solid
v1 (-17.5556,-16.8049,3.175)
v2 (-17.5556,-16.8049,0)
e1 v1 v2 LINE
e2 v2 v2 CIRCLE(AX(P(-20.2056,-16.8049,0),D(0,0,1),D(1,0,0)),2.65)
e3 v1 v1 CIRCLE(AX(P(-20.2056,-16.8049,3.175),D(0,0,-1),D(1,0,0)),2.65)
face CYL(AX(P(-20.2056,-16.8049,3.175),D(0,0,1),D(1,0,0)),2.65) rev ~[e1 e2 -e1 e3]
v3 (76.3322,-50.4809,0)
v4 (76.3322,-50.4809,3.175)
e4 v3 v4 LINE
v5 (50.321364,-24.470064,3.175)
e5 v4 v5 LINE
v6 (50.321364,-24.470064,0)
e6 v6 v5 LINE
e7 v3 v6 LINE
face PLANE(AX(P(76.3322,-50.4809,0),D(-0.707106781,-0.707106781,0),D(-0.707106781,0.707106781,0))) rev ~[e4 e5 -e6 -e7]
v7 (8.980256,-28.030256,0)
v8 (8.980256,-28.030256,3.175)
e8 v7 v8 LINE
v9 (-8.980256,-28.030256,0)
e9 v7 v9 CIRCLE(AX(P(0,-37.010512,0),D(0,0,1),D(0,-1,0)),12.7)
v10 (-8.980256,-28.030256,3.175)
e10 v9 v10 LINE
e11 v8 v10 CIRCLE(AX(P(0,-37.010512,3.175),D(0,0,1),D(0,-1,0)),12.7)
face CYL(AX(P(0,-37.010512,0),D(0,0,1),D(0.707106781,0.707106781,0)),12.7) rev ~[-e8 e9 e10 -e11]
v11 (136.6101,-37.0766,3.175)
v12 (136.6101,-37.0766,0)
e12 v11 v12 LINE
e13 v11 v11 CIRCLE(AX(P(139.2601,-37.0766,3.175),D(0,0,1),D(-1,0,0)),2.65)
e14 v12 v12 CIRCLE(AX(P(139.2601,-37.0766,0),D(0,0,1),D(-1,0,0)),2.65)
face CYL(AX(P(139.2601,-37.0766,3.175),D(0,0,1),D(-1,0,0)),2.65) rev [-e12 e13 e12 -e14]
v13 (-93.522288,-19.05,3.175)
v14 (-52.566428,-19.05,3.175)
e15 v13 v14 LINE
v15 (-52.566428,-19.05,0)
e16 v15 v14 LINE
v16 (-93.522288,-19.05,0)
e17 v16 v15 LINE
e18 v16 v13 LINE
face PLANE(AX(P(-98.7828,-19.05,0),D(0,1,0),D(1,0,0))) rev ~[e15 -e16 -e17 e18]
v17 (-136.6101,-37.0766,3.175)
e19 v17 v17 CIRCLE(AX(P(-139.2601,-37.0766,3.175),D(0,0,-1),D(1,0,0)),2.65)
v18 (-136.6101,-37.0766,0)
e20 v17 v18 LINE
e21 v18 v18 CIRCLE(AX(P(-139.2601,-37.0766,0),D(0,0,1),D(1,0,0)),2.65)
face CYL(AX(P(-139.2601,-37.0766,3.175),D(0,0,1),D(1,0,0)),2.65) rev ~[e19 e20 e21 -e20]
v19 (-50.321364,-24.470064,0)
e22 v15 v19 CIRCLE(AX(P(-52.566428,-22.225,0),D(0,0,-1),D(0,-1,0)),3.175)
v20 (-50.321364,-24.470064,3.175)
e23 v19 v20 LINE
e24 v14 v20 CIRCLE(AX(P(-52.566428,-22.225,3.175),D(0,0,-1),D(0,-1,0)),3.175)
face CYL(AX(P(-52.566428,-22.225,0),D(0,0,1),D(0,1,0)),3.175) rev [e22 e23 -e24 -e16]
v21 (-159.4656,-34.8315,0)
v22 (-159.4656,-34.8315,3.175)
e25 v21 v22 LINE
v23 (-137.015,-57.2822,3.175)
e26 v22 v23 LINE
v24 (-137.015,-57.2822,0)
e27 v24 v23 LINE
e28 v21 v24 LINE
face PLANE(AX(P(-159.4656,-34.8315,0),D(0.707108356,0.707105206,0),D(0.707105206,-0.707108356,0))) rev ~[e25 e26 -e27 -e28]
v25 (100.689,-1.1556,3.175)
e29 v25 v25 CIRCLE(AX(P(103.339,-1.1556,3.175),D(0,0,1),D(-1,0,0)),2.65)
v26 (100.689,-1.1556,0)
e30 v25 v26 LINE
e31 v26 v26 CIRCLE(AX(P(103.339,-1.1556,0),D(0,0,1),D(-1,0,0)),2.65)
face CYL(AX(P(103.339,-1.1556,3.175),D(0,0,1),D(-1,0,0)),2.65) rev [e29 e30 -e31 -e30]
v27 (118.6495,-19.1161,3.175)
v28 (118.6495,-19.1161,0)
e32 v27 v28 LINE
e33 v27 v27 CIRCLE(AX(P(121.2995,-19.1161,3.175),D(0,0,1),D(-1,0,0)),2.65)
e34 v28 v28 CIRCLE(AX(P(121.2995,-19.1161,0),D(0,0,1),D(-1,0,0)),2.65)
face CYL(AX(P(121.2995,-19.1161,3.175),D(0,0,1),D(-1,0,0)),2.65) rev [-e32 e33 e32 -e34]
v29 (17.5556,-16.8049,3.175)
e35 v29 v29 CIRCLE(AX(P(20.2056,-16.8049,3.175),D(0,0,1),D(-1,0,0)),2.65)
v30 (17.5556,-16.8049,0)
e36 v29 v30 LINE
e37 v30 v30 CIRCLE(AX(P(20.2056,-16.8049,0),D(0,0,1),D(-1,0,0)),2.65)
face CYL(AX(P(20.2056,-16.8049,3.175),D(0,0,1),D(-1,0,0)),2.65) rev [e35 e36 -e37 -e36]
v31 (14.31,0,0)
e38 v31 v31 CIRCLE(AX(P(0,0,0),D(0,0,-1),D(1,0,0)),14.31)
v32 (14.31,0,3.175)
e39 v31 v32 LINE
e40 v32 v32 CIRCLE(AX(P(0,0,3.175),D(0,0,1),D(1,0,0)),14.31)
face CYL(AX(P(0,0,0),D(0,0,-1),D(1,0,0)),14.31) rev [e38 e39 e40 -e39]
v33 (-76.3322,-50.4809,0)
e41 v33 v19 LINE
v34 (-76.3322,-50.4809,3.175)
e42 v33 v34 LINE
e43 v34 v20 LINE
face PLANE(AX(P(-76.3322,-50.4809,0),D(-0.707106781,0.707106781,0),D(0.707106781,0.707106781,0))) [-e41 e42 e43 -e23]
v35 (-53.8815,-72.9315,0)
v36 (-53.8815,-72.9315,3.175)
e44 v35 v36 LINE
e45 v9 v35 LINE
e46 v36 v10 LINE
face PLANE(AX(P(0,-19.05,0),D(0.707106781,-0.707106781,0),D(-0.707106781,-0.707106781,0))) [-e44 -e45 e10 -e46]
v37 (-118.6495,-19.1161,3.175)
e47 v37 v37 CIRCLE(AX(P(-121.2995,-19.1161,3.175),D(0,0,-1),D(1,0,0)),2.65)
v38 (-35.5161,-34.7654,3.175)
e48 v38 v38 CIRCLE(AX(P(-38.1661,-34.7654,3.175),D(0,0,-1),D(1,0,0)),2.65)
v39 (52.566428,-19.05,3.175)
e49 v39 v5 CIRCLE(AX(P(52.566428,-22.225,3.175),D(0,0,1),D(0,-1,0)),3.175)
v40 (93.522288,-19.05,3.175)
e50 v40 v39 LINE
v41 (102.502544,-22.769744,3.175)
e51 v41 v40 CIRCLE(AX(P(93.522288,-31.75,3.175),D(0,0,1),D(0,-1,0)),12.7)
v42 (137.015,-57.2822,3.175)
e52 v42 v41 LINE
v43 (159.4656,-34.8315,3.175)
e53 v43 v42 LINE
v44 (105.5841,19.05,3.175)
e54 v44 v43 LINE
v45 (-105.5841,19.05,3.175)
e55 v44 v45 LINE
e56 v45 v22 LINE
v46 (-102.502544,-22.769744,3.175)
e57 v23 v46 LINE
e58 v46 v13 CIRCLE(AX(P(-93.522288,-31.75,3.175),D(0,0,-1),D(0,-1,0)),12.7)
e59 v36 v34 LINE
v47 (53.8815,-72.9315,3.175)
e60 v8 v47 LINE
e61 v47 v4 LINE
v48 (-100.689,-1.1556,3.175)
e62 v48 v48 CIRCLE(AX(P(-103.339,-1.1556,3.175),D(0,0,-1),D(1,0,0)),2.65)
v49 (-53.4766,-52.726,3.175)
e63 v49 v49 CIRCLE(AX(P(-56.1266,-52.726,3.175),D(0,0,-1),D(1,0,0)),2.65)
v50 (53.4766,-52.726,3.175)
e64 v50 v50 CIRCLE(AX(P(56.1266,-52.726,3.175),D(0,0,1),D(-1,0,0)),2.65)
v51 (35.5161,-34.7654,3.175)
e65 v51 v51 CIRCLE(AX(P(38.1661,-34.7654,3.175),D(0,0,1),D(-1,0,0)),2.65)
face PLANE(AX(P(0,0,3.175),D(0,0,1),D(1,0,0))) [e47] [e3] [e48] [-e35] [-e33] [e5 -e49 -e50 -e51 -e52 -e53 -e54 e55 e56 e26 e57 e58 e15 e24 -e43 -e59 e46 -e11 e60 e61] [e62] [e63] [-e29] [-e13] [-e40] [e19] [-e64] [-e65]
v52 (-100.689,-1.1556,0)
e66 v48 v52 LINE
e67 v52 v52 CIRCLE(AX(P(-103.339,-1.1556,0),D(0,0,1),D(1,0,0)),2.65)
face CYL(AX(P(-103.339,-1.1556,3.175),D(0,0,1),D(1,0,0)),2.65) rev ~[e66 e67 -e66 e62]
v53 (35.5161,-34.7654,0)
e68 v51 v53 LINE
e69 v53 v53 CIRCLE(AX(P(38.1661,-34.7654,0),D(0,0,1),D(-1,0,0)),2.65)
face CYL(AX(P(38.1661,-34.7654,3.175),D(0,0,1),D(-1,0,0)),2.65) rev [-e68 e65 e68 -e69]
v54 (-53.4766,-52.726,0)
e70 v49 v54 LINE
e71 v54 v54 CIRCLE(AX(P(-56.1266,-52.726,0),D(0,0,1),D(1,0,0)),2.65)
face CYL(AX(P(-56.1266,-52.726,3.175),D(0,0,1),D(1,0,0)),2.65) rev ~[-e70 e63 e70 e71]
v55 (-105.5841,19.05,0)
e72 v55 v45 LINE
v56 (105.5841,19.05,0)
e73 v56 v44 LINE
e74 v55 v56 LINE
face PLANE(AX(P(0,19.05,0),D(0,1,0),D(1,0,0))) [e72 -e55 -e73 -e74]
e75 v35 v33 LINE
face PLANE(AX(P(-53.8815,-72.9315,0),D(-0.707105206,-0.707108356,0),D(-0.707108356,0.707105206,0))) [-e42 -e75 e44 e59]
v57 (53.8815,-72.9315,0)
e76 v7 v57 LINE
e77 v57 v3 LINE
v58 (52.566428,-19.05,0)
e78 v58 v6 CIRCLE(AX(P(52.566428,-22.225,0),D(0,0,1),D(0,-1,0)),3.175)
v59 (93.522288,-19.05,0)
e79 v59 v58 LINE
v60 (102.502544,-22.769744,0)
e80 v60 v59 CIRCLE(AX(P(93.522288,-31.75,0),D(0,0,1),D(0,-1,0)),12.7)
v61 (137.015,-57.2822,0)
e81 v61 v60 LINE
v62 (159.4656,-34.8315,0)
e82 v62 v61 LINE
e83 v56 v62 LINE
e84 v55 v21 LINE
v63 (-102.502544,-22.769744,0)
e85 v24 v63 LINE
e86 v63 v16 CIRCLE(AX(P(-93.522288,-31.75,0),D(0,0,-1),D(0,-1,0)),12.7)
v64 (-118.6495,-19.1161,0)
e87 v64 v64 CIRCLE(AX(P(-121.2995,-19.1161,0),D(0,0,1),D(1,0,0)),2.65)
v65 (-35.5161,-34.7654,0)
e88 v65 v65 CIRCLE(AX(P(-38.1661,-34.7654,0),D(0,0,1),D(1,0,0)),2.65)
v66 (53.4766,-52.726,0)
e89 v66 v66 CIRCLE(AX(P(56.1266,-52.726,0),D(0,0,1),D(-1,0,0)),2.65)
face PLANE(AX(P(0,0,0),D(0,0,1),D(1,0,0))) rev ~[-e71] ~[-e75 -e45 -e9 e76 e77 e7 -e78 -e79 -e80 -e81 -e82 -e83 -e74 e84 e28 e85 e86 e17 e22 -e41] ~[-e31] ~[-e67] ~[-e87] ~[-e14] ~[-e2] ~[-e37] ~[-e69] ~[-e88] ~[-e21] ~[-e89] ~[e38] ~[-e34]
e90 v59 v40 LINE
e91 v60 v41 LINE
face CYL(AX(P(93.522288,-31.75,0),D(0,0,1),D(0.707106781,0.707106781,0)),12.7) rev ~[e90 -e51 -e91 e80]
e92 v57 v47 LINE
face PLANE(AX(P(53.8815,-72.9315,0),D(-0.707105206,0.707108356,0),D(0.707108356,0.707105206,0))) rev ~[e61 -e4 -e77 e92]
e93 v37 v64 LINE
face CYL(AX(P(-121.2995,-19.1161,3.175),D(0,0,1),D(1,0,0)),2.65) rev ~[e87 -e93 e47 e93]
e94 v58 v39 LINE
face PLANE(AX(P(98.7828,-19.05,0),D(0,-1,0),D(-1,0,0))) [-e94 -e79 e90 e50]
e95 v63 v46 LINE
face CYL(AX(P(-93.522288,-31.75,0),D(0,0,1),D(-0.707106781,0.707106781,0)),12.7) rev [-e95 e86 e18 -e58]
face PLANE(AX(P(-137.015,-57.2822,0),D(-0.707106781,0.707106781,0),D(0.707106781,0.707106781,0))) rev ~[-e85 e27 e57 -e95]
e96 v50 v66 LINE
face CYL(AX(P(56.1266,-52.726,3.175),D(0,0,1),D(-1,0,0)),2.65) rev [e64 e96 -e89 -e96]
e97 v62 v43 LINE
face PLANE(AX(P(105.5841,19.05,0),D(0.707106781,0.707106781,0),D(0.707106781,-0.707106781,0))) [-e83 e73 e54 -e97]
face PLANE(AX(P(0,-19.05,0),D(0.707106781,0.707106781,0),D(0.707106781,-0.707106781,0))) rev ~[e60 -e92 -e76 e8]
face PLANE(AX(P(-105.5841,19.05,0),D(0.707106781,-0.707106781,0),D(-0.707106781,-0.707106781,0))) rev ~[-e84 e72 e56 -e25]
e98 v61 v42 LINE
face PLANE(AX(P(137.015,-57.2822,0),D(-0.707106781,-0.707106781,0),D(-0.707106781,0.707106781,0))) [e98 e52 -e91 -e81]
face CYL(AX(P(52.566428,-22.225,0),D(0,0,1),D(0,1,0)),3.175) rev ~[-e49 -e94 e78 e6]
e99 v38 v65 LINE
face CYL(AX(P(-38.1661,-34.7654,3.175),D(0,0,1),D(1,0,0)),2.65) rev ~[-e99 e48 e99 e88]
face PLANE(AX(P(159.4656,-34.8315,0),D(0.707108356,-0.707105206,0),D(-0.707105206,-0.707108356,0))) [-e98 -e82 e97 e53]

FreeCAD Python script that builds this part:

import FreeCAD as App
import Part
import Sketcher
from FreeCAD import Vector
Q = App.Units.Quantity


def edges_at(feature, points):
    """Names of the edges that pass closest to the given points."""
    edges = feature.Shape.Edges
    near = lambda p: min(range(len(edges)), key=lambda i: edges[i].distToShape(Part.Vertex(*p))[0])
    return sorted({f"Edge{near(p) + 1}" for p in points})

doc = App.newDocument("Part")
body = doc.addObject("PartDesign::Body", "Body")

sketch1 = body.newObject("Sketcher::SketchObject", "Sketch")
sketch1.AttachmentSupport = (doc.getObject("XY_Plane"), [""])
sketch1.MapMode = "FlatFace"
sketch1.addGeometry([
    Part.LineSegment(Vector(105.5841, 19.05, 0), Vector(-105.5841, 19.05, 0)),
    Part.LineSegment(Vector(-105.5841, 19.05, 0), Vector(-159.4656, -34.8315, 0)),
    Part.LineSegment(Vector(-159.4656, -34.8315, 0), Vector(-137.015, -57.2822, 0)),
    Part.LineSegment(Vector(-137.015, -57.2822, 0), Vector(-98.7828, -19.05, 0)),
    Part.LineSegment(Vector(-98.7828, -19.05, 0), Vector(-44.9013, -19.05, 0)),
    Part.LineSegment(Vector(-44.9013, -19.05, 0), Vector(-76.3322, -50.4809, 0)),
    Part.LineSegment(Vector(-76.3322, -50.4809, 0), Vector(-53.8815, -72.9315, 0)),
    Part.LineSegment(Vector(-53.8815, -72.9315, 0), Vector(0, -19.05, 0)),
    Part.LineSegment(Vector(0, -19.05, 0), Vector(53.8815, -72.9315, 0)),
    Part.LineSegment(Vector(53.8815, -72.9315, 0), Vector(76.3322, -50.4809, 0)),
    Part.LineSegment(Vector(76.3322, -50.4809, 0), Vector(44.9013, -19.05, 0)),
    Part.LineSegment(Vector(44.9013, -19.05, 0), Vector(98.7828, -19.05, 0)),
    Part.LineSegment(Vector(98.7828, -19.05, 0), Vector(137.015, -57.2822, 0)),
    Part.LineSegment(Vector(137.015, -57.2822, 0), Vector(159.4656, -34.8315, 0)),
    Part.LineSegment(Vector(159.4656, -34.8315, 0), Vector(105.5841, 19.05, 0)),
    Part.Circle(Vector(0, 0, 0), Vector(0, 0, 1), 14.31),
], False)
sketch1.addConstraint([
    Sketcher.Constraint("Coincident", 0, 2, 1, 1),
    Sketcher.Constraint("Coincident", 1, 2, 2, 1),
    Sketcher.Constraint("Coincident", 2, 2, 3, 1),
    Sketcher.Constraint("Coincident", 3, 2, 4, 1),
    Sketcher.Constraint("Coincident", 4, 2, 5, 1),
    Sketcher.Constraint("Coincident", 5, 2, 6, 1),
    Sketcher.Constraint("Coincident", 6, 2, 7, 1),
    Sketcher.Constraint("Coincident", 7, 2, 8, 1),
    Sketcher.Constraint("Coincident", 8, 2, 9, 1),
    Sketcher.Constraint("Coincident", 9, 2, 10, 1),
    Sketcher.Constraint("Coincident", 10, 2, 11, 1),
    Sketcher.Constraint("Coincident", 11, 2, 12, 1),
    Sketcher.Constraint("Coincident", 12, 2, 13, 1),
    Sketcher.Constraint("Coincident", 13, 2, 14, 1),
    Sketcher.Constraint("Coincident", 14, 2, 0, 1),
    Sketcher.Constraint("Horizontal", 0),
    Sketcher.Constraint("Horizontal", 4),
    Sketcher.Constraint("Horizontal", 11),
    Sketcher.Constraint("Coincident", 15, 3, -1, 1),
    Sketcher.Constraint("Symmetric", 6, 2, 8, 2, -2),
    Sketcher.Constraint("Symmetric", 5, 2, 9, 2, -2),
    Sketcher.Constraint("Symmetric", 4, 2, 10, 2, -2),
    Sketcher.Constraint("Symmetric", 2, 2, 12, 2, -2),
    Sketcher.Constraint("Symmetric", 1, 2, 13, 2, -2),
    Sketcher.Constraint("PointOnObject", 7, 2, -2),
    Sketcher.Constraint("Perpendicular", 1, 2),
    Sketcher.Constraint("Perpendicular", 2, 3),
    Sketcher.Constraint("Parallel", 3, 5),
    Sketcher.Constraint("Perpendicular", 5, 6),
    Sketcher.Constraint("Perpendicular", 6, 7),
    Sketcher.Constraint("Perpendicular", 7, 8),
    Sketcher.Constraint("Parallel", 10, 12),
    Sketcher.Constraint("Perpendicular", 13, 14),
    Sketcher.Constraint("Horizontal", 4, 2, 7, 2),
    Sketcher.Constraint("Equal", 2, 6),
    Sketcher.Constraint("Equal", 1, 7),
    Sketcher.Constraint("Distance", 1, Q("3 in")),
    Sketcher.Constraint("DistanceY", 3, 2, 0, 2, Q("1.5 in")),
    Sketcher.Constraint("Distance", 2, Q("1.25 in")),
    Sketcher.Constraint("Diameter", 15, Q("28.62 mm")),
    Sketcher.Constraint("DistanceY", -1, 1, 0, 2, Q("0.75 in")),
    Sketcher.Constraint("DistanceX", 0, 2, 0, 1, Q("8.3137 in")),
])
pad1 = body.newObject("PartDesign::Pad", "Pad")
pad1.Profile = sketch1
pad1.Length = Q("0.125 in")

sketch2 = body.newObject("Sketcher::SketchObject", "Sketch001")
sketch2.AttachmentSupport = (doc.getObject("XY_Plane"), [""])
sketch2.MapMode = "FlatFace"
sketch2.AttachmentOffset = App.Placement(Vector(0, 0, 0.125 * 25.4), App.Rotation())
sketch2.addGeometry([
    Part.Circle(Vector(-56.1266, -52.726, 0), Vector(0, 0, 1), 2.65),
    Part.Circle(Vector(-38.1661, -34.7654, 0), Vector(0, 0, 1), 2.65),
    Part.Circle(Vector(-20.2056, -16.8049, 0), Vector(0, 0, 1), 2.65),
    Part.Circle(Vector(-103.339, -1.1556, 0), Vector(0, 0, 1), 2.65),
    Part.Circle(Vector(-139.2601, -37.0766, 0), Vector(0, 0, 1), 2.65),
    Part.Circle(Vector(-121.2995, -19.1161, 0), Vector(0, 0, 1), 2.65),
], False)
sketch2.addConstraint([
    Sketcher.Constraint("Equal", 0, 1),
    Sketcher.Constraint("Equal", 1, 2),
    Sketcher.Constraint("Equal", 2, 3),
    Sketcher.Constraint("Equal", 3, 4),
    Sketcher.Constraint("Equal", 4, 5),
    Sketcher.Constraint("Diameter", 0, Q("5.3 mm")),
    Sketcher.Constraint("DistanceY", 4, 3, 1, 3, Q("0.091 in")),
    Sketcher.Constraint("DistanceY", 5, 3, 2, 3, Q("0.091 in")),
    Sketcher.Constraint("DistanceX", 0, 3, -1, 1, Q("2.2097 in")),
    Sketcher.Constraint("DistanceX", 1, 3, -1, 1, Q("1.5026 in")),
    Sketcher.Constraint("DistanceX", 2, 3, -1, 1, Q("0.7955 in")),
    Sketcher.Constraint("DistanceY", 2, 3, -1, 1, Q("0.6616 in")),
    Sketcher.Constraint("DistanceY", 3, 3, -1, 1, Q("0.0455 in")),
    Sketcher.Constraint("DistanceY", 4, 3, -1, 1, Q("1.4597 in")),
    Sketcher.Constraint("DistanceY", 0, 3, 1, 3, Q("0.7071 in")),
    Sketcher.Constraint("DistanceX", 5, 3, 3, 3, Q("0.7071 in")),
    Sketcher.Constraint("DistanceX", 4, 3, 5, 3, Q("0.7071 in")),
    Sketcher.Constraint("DistanceX", 3, 3, -1, 1, Q("103.339 mm")),
])
pocket1 = body.newObject("PartDesign::Pocket", "Pocket")
pocket1.Profile = sketch2
pocket1.Length = Q("1 in")
doc.recompute()

mirrored = body.newObject("PartDesign::Mirrored", "Mirrored")
mirrored.Originals = [pocket1]
mirrored.MirrorPlane = (doc.getObject("YZ_Plane"), [""])
body.Tip = mirrored
doc.recompute()

fillet = body.newObject("PartDesign::Fillet", "Fillet")
fillet.Base = (mirrored, edges_at(mirrored, [(-98.783, -19.05, 1.587), (0, -19.05, 1.587), (98.783, -19.05, 1.587)]))
fillet.Radius = Q("0.5 in")
doc.recompute()

fillet2 = body.newObject("PartDesign::Fillet", "Fillet001")
fillet2.Base = (fillet, edges_at(fillet, [(-44.901, -19.05, 1.587), (44.901, -19.05, 1.587)]))
fillet2.Radius = Q("0.125 in")

doc.recompute()
